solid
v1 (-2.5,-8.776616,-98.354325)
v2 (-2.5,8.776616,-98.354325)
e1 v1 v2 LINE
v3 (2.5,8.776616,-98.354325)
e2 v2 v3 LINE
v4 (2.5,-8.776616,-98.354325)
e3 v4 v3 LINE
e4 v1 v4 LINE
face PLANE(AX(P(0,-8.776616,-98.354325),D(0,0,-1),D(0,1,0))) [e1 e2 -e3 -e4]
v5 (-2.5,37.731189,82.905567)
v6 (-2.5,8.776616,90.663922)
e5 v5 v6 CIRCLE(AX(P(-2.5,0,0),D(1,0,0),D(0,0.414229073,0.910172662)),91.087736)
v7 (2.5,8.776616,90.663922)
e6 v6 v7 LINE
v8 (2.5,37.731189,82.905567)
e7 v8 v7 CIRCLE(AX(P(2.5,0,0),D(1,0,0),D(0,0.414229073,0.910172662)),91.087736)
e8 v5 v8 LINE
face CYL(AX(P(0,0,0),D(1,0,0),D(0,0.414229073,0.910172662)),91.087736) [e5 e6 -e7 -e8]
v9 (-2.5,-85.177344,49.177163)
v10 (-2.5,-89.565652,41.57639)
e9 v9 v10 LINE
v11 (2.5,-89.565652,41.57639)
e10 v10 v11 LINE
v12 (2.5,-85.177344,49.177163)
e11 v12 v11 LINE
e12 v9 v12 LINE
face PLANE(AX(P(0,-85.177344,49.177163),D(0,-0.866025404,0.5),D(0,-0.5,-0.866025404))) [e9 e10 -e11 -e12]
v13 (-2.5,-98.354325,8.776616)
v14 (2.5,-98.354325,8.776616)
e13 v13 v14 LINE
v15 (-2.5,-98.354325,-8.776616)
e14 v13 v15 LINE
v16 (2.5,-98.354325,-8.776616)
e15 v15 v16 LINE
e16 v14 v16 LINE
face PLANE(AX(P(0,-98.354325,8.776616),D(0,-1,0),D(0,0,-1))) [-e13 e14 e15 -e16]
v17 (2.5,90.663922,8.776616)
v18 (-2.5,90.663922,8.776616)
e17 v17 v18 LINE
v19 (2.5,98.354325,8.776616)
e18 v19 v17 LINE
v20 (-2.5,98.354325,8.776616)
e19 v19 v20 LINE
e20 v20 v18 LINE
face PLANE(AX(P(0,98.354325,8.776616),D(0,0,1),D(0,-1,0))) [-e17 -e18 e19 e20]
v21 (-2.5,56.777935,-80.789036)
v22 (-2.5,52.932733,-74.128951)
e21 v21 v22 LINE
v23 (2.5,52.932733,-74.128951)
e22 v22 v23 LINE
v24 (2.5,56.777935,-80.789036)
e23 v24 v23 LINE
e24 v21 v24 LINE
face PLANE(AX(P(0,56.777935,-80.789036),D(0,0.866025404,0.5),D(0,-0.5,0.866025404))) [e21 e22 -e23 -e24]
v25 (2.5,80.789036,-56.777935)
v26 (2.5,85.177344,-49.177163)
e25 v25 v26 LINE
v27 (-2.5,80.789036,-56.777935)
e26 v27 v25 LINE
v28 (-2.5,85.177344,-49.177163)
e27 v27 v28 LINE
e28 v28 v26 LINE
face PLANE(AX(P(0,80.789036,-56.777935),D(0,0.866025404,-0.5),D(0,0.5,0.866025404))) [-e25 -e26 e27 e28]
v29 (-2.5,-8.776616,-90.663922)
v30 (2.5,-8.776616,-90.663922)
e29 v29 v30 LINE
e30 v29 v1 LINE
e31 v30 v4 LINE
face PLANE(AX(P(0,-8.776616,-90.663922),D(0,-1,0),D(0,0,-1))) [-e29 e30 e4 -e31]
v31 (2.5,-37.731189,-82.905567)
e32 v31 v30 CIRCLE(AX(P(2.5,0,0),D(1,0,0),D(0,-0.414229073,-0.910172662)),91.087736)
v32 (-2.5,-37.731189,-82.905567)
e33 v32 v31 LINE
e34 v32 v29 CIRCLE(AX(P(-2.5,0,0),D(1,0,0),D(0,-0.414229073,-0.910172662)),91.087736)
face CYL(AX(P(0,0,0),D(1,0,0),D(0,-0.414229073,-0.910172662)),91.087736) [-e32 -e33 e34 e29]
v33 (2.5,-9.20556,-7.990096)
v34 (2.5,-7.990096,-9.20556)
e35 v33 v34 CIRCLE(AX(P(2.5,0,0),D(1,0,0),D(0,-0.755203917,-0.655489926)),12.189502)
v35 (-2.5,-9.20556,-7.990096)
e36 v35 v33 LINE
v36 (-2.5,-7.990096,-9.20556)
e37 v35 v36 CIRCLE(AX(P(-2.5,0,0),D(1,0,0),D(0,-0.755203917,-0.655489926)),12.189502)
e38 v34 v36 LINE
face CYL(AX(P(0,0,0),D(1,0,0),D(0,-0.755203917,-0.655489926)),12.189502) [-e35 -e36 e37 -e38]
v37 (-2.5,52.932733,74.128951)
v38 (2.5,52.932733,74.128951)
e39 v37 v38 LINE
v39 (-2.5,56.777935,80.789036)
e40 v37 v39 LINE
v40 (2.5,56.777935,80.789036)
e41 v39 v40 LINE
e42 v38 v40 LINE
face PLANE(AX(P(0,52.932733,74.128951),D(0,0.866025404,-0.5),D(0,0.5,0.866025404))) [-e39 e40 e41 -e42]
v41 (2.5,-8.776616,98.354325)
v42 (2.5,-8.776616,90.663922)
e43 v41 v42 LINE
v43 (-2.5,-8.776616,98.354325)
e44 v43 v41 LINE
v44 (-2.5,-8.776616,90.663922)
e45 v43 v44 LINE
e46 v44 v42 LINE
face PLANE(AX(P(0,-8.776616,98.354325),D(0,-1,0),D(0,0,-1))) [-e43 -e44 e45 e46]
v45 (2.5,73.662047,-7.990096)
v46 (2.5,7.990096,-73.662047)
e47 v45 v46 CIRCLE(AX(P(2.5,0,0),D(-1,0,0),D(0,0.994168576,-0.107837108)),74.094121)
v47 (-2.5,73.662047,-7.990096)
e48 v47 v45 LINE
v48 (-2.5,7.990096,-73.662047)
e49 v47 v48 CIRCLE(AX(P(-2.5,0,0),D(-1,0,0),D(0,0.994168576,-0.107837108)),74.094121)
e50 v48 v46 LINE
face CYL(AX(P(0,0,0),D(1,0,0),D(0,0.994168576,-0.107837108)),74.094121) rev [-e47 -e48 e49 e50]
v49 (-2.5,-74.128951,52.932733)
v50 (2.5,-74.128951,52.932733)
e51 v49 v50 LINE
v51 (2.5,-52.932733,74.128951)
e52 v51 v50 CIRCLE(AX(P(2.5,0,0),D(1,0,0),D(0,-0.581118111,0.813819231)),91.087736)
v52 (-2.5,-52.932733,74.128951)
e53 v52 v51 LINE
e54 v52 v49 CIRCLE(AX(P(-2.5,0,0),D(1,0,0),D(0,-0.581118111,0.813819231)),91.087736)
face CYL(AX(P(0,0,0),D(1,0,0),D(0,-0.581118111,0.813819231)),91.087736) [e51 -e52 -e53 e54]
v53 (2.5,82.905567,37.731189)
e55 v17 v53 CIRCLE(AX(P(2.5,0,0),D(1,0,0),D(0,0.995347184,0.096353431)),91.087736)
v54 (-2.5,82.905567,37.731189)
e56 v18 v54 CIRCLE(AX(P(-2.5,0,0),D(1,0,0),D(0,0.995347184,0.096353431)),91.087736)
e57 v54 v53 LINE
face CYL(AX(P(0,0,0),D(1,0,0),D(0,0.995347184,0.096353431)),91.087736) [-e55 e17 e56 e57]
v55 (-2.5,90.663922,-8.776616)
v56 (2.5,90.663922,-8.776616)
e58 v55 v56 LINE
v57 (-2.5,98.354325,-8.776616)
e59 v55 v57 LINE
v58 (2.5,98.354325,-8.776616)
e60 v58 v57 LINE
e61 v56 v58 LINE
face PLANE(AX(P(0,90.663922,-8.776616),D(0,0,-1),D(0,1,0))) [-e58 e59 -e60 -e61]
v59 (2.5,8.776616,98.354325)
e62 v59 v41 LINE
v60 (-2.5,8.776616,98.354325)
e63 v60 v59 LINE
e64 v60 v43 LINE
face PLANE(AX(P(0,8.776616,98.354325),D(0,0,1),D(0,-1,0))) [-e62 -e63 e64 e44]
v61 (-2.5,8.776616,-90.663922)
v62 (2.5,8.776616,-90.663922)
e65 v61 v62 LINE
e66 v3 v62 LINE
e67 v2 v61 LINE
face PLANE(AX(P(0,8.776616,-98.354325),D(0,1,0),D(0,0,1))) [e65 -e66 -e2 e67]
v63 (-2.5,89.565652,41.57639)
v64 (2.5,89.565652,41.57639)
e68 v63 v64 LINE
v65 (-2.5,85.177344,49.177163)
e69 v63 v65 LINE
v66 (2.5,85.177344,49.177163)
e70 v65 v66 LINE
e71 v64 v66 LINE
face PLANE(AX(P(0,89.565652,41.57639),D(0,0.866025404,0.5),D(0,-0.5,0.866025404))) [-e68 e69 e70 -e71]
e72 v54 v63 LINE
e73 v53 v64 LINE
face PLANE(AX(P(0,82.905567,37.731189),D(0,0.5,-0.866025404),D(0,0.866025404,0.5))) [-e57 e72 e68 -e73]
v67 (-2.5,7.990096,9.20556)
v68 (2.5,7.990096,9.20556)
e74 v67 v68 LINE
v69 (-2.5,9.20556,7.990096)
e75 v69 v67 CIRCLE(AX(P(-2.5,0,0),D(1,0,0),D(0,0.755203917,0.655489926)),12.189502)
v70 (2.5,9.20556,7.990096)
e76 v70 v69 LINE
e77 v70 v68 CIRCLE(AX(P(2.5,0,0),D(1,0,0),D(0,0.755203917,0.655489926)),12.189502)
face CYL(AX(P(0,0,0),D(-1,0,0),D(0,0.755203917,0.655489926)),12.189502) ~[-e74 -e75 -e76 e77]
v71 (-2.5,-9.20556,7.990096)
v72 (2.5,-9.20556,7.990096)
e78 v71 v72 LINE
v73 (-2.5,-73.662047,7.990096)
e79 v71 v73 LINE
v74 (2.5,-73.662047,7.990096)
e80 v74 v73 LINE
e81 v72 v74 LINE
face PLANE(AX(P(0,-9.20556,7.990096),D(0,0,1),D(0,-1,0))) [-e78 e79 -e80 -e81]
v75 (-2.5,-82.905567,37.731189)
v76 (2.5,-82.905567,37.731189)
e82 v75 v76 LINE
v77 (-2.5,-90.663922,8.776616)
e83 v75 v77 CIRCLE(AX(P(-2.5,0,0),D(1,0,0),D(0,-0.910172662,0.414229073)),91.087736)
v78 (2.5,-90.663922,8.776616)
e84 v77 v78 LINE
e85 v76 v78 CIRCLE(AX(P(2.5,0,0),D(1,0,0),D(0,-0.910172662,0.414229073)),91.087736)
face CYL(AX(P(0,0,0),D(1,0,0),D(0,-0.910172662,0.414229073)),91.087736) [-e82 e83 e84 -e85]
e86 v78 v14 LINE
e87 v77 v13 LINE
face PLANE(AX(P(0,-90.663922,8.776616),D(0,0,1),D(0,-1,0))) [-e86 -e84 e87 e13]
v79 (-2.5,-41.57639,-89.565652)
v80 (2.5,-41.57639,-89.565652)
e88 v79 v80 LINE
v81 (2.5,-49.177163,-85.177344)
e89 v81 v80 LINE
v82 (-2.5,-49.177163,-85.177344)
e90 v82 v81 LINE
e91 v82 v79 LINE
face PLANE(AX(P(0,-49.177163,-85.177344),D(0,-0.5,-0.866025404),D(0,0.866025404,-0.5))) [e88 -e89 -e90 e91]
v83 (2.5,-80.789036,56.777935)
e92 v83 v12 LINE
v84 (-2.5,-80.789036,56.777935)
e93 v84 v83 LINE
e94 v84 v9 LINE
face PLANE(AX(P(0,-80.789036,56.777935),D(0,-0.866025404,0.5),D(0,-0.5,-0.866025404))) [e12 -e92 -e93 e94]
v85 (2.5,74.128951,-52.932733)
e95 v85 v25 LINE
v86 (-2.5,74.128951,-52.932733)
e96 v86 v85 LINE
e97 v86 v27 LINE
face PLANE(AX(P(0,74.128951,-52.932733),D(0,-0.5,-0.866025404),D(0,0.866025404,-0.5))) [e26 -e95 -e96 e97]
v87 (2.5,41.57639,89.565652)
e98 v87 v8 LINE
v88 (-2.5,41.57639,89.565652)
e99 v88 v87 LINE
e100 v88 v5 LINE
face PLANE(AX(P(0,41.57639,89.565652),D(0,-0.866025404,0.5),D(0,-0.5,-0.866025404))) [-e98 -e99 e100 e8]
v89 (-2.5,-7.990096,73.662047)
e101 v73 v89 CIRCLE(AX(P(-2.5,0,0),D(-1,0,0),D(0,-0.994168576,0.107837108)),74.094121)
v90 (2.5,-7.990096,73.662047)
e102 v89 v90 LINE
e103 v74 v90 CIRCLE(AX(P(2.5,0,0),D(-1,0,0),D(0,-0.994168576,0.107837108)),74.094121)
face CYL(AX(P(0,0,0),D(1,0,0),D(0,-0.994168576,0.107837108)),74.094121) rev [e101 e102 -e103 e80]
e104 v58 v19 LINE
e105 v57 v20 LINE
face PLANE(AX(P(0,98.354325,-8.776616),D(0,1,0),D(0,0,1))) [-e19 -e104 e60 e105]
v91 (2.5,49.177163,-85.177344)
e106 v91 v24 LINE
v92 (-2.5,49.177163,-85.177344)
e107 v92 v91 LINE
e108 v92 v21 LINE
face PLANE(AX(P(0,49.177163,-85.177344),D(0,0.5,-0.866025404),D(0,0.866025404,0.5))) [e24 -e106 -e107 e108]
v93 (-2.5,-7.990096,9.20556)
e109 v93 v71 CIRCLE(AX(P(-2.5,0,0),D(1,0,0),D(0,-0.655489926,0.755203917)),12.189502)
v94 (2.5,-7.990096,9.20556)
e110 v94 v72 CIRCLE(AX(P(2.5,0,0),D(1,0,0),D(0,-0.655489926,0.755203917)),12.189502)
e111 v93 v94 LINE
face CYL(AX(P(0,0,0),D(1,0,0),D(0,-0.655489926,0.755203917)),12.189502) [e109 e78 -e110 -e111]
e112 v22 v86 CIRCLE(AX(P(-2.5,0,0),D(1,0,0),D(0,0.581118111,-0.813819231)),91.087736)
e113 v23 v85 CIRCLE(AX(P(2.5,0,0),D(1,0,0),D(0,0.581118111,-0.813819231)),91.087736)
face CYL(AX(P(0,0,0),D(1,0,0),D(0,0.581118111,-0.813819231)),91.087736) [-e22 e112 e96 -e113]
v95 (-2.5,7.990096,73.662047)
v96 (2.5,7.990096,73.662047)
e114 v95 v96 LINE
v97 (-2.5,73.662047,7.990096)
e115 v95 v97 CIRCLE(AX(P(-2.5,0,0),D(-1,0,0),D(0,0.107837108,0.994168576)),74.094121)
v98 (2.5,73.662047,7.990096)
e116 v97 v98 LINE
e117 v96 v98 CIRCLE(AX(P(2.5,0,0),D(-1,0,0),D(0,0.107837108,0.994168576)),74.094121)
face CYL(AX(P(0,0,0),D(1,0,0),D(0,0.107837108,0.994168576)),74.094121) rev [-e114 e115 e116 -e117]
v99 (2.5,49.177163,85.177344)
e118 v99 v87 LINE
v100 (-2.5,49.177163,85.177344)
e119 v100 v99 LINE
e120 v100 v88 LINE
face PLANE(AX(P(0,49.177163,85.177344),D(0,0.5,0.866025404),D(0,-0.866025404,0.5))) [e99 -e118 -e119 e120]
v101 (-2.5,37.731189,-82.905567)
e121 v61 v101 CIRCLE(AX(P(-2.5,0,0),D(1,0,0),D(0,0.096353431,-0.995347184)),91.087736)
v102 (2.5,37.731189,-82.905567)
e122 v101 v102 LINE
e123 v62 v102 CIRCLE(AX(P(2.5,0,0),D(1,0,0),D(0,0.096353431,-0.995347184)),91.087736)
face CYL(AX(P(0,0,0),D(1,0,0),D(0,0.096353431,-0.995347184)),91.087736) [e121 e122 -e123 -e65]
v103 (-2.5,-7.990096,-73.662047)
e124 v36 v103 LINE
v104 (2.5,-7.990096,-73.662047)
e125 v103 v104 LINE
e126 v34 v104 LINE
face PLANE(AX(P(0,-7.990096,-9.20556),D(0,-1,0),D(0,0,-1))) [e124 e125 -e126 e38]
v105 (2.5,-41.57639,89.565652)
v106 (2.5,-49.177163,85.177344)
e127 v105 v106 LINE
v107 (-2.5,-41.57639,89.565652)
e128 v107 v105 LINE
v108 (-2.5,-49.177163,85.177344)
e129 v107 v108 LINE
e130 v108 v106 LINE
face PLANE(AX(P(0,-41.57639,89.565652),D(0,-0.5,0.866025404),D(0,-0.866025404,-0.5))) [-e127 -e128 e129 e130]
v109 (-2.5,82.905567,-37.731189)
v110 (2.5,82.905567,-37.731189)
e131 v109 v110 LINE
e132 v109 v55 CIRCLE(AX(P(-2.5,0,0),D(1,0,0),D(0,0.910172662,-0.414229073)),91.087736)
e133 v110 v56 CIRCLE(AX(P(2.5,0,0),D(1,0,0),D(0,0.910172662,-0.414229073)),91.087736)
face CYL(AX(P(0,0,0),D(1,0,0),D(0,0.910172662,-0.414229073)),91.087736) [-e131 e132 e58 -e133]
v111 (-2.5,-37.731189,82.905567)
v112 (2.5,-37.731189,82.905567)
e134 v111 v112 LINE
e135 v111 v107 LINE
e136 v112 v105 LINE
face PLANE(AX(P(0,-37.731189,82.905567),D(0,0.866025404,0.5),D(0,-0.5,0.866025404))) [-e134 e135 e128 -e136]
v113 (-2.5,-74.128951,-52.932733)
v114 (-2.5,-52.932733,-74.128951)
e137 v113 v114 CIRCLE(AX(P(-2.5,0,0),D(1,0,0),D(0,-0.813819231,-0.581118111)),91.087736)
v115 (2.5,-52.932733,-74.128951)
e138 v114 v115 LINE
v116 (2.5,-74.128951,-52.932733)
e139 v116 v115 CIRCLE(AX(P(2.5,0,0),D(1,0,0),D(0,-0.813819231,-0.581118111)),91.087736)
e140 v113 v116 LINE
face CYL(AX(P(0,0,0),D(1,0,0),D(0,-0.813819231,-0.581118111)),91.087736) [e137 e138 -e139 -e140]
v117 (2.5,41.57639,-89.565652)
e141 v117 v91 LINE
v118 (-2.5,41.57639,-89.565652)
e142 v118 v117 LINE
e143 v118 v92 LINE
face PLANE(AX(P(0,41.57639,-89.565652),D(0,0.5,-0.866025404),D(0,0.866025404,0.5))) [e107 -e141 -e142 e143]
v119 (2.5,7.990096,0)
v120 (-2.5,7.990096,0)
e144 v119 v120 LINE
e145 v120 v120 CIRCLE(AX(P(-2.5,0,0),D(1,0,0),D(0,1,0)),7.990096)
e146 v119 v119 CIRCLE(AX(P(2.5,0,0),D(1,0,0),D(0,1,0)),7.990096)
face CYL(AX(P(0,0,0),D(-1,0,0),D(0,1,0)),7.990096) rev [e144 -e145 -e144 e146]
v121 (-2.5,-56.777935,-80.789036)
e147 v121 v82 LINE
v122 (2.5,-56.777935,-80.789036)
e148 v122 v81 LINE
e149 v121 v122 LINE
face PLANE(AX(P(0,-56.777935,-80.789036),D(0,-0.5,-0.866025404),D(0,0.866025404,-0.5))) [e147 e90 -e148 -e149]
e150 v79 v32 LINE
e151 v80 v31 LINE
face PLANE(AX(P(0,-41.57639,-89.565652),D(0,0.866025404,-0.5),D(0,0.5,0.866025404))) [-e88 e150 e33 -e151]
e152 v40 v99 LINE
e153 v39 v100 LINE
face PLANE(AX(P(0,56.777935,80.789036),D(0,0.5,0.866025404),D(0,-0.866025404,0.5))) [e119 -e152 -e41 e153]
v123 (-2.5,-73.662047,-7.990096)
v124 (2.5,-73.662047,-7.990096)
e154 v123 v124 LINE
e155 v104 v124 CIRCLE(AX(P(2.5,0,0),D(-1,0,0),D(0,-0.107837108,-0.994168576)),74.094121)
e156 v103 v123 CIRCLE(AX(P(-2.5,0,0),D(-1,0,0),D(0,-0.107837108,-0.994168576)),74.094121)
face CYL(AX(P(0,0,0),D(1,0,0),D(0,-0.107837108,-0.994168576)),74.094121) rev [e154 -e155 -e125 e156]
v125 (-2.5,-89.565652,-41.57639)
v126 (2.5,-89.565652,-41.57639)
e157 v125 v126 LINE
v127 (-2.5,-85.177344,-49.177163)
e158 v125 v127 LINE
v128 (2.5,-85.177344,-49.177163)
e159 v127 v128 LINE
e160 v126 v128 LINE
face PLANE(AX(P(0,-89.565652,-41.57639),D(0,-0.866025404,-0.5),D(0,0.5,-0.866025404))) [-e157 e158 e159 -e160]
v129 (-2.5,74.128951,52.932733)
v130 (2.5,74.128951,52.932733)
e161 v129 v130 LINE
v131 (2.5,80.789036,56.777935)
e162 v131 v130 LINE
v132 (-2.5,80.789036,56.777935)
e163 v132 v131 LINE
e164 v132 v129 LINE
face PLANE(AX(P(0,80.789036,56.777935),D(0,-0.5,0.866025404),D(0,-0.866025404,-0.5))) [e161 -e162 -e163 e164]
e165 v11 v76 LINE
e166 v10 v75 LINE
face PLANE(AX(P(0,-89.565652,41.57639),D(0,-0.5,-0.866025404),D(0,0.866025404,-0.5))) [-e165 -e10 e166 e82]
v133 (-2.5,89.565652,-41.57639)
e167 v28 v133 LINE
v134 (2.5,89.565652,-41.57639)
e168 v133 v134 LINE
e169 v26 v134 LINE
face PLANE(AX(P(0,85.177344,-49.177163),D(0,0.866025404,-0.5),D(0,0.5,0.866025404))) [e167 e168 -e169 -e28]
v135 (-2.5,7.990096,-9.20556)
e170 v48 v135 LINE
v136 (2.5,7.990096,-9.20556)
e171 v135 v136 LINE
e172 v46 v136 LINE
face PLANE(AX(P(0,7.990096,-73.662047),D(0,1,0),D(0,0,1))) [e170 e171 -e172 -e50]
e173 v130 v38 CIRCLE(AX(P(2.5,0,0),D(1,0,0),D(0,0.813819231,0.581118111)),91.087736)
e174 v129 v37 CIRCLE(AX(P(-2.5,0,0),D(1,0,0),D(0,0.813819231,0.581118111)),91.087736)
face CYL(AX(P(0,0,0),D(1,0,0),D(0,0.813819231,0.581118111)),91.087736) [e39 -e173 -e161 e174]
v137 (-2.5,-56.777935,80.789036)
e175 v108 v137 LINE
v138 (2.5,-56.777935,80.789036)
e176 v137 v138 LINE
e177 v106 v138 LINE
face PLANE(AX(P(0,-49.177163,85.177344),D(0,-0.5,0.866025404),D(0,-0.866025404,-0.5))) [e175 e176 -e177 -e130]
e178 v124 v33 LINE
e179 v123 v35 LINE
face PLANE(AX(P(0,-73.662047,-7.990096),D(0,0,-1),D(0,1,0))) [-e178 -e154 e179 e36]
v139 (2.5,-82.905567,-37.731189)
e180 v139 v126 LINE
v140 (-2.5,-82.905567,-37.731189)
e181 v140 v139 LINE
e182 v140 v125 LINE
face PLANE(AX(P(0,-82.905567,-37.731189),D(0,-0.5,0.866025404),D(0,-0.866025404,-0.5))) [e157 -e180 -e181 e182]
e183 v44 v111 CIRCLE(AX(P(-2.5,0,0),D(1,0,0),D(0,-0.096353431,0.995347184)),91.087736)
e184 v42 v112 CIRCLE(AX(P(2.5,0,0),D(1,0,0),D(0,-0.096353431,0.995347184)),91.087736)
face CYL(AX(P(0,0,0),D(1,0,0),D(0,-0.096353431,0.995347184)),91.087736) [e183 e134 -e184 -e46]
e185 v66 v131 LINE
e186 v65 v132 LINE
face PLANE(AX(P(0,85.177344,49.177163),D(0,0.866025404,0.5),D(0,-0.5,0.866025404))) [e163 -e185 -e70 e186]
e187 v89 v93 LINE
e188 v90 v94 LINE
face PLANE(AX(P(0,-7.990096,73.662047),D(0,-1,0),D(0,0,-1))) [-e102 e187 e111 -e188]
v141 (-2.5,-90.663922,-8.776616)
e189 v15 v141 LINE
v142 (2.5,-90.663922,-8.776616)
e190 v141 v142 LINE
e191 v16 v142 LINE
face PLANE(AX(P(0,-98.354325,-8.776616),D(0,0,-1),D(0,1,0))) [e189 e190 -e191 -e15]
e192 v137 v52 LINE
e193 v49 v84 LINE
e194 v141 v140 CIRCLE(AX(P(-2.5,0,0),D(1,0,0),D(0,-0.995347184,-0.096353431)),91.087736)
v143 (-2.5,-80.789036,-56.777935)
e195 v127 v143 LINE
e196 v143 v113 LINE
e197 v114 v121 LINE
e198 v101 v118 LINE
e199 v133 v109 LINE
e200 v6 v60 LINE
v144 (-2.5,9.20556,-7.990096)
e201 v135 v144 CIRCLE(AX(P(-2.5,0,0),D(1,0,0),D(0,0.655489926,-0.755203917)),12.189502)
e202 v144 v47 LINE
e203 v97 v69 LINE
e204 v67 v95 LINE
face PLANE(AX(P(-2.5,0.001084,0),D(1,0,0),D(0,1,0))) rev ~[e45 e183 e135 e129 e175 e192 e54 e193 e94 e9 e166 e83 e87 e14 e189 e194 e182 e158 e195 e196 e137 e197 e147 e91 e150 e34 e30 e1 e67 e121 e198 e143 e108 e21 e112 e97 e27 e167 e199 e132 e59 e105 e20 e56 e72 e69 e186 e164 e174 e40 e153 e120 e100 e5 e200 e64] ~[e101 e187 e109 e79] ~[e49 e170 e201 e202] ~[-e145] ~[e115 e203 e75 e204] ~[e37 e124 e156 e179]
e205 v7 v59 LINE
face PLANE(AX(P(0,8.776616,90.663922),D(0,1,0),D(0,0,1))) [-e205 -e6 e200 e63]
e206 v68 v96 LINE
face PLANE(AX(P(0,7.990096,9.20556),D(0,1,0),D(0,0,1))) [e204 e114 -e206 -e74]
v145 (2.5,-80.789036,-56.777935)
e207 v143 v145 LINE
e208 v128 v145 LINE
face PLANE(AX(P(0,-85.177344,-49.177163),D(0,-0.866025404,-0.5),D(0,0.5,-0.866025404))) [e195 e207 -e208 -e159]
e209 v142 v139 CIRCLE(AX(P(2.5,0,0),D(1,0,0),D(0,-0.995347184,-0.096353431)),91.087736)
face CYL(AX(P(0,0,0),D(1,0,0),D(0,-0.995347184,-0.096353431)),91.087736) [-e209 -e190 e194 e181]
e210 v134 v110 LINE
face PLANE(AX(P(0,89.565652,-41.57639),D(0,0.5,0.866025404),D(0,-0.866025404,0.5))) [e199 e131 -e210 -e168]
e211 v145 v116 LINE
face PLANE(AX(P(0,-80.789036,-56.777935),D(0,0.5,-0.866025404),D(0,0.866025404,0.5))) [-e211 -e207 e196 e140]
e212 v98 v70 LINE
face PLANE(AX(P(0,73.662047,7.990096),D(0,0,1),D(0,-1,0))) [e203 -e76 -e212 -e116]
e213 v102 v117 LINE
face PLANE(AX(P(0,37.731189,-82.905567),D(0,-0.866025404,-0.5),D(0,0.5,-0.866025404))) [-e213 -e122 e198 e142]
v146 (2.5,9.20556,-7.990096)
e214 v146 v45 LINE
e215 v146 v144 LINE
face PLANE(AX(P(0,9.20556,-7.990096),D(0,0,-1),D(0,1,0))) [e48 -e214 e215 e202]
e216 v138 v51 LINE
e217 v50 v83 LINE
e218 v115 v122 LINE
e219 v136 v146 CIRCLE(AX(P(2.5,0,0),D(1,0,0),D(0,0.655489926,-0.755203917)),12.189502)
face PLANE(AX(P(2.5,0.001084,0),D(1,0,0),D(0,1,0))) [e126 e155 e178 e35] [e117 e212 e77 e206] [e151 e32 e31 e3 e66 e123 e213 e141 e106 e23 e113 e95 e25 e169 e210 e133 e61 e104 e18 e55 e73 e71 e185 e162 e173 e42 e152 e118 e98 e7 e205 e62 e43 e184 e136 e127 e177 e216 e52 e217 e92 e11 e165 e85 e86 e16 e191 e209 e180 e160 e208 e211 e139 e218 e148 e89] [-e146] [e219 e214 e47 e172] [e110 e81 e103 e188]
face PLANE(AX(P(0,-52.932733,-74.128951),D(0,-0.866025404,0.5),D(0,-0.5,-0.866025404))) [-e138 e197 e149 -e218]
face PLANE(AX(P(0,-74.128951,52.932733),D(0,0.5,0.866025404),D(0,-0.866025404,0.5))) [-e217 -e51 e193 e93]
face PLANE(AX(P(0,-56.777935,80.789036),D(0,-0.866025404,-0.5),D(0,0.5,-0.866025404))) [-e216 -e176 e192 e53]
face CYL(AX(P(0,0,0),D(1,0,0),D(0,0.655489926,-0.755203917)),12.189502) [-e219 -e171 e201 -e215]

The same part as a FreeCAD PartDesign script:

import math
import FreeCAD as App
import Part
import Sketcher
from FreeCAD import Vector
Q = App.Units.Quantity

doc = App.newDocument("Part")
body = doc.addObject("PartDesign::Body", "Body")

sketch1 = doc.addObject("Sketcher::SketchObject", "Sketch")
body.addObject(sketch1)
sketch1.AttachmentSupport = (doc.YZ_Plane, [""])
sketch1.MapMode = "FlatFace"
sketch1.addGeometry([
    Part.ArcOfCircle(Part.Circle(Vector(0, 0, 0), Vector(0, 0, 1), 91.1), math.radians(5.53), math.radians(24.47)),
    Part.LineSegment(Vector(82.9, 37.7, 0), Vector(89.6, 41.6, 0)),
    Part.LineSegment(Vector(89.6, 41.6, 0), Vector(85.2, 49.2, 0)),
    Part.LineSegment(Vector(85.2, 49.2, 0), Vector(80.8, 56.8, 0)),
    Part.LineSegment(Vector(80.8, 56.8, 0), Vector(74.1, 52.9, 0)),
    Part.ArcOfCircle(Part.Circle(Vector(0, 0, 0), Vector(0, 0, 1), 91.1), math.radians(35.53), math.radians(54.47)),
    Part.LineSegment(Vector(52.9, 74.1, 0), Vector(56.8, 80.8, 0)),
    Part.LineSegment(Vector(56.8, 80.8, 0), Vector(49.2, 85.2, 0)),
    Part.LineSegment(Vector(49.2, 85.2, 0), Vector(41.6, 89.6, 0)),
    Part.LineSegment(Vector(41.6, 89.6, 0), Vector(37.7, 82.9, 0)),
    Part.ArcOfCircle(Part.Circle(Vector(0, 0, 0), Vector(0, 0, 1), 91.1), math.radians(65.53), math.radians(84.47)),
    Part.LineSegment(Vector(8.8, 90.7, 0), Vector(8.8, 98.4, 0)),
    Part.LineSegment(Vector(8.8, 98.4, 0), Vector(-8.8, 98.4, 0)),
    Part.LineSegment(Vector(-8.8, 98.4, 0), Vector(-8.8, 90.7, 0)),
    Part.ArcOfCircle(Part.Circle(Vector(0, 0, 0), Vector(0, 0, 1), 91.1), math.radians(95.53), math.radians(114.47)),
    Part.LineSegment(Vector(-37.7, 82.9, 0), Vector(-41.6, 89.6, 0)),
    Part.LineSegment(Vector(-41.6, 89.6, 0), Vector(-49.2, 85.2, 0)),
    Part.LineSegment(Vector(-49.2, 85.2, 0), Vector(-56.8, 80.8, 0)),
    Part.LineSegment(Vector(-56.8, 80.8, 0), Vector(-52.9, 74.1, 0)),
    Part.ArcOfCircle(Part.Circle(Vector(0, 0, 0), Vector(0, 0, 1), 91.1), math.radians(125.53), math.radians(144.47)),
    Part.LineSegment(Vector(-74.1, 52.9, 0), Vector(-80.8, 56.8, 0)),
    Part.LineSegment(Vector(-80.8, 56.8, 0), Vector(-85.2, 49.2, 0)),
    Part.LineSegment(Vector(-85.2, 49.2, 0), Vector(-89.6, 41.6, 0)),
    Part.LineSegment(Vector(-89.6, 41.6, 0), Vector(-82.9, 37.7, 0)),
    Part.ArcOfCircle(Part.Circle(Vector(0, 0, 0), Vector(0, 0, 1), 91.1), math.radians(155.53), math.radians(174.47)),
    Part.LineSegment(Vector(-90.7, 8.8, 0), Vector(-98.4, 8.8, 0)),
    Part.LineSegment(Vector(-98.4, 8.8, 0), Vector(-98.4, -8.8, 0)),
    Part.LineSegment(Vector(-98.4, -8.8, 0), Vector(-90.7, -8.8, 0)),
    Part.ArcOfCircle(Part.Circle(Vector(0, 0, 0), Vector(0, 0, 1), 91.1), math.radians(-174.47), math.radians(-155.53)),
    Part.LineSegment(Vector(-82.9, -37.7, 0), Vector(-89.6, -41.6, 0)),
    Part.LineSegment(Vector(-89.6, -41.6, 0), Vector(-85.2, -49.2, 0)),
    Part.LineSegment(Vector(-85.2, -49.2, 0), Vector(-80.8, -56.8, 0)),
    Part.LineSegment(Vector(-80.8, -56.8, 0), Vector(-74.1, -52.9, 0)),
    Part.ArcOfCircle(Part.Circle(Vector(0, 0, 0), Vector(0, 0, 1), 91.1), math.radians(-144.47), math.radians(-125.53)),
    Part.LineSegment(Vector(-52.9, -74.1, 0), Vector(-56.8, -80.8, 0)),
    Part.LineSegment(Vector(-56.8, -80.8, 0), Vector(-49.2, -85.2, 0)),
    Part.LineSegment(Vector(-49.2, -85.2, 0), Vector(-41.6, -89.6, 0)),
    Part.LineSegment(Vector(-41.6, -89.6, 0), Vector(-37.7, -82.9, 0)),
    Part.ArcOfCircle(Part.Circle(Vector(0, 0, 0), Vector(0, 0, 1), 91.1), math.radians(-114.47), math.radians(-95.53)),
    Part.LineSegment(Vector(-8.8, -90.7, 0), Vector(-8.8, -98.4, 0)),
    Part.LineSegment(Vector(-8.8, -98.4, 0), Vector(8.8, -98.4, 0)),
    Part.LineSegment(Vector(8.8, -98.4, 0), Vector(8.8, -90.7, 0)),
    Part.ArcOfCircle(Part.Circle(Vector(0, 0, 0), Vector(0, 0, 1), 91.1), math.radians(-84.47), math.radians(-65.53)),
    Part.LineSegment(Vector(37.7, -82.9, 0), Vector(41.6, -89.6, 0)),
    Part.LineSegment(Vector(41.6, -89.6, 0), Vector(49.2, -85.2, 0)),
    Part.LineSegment(Vector(49.2, -85.2, 0), Vector(56.8, -80.8, 0)),
    Part.LineSegment(Vector(56.8, -80.8, 0), Vector(52.9, -74.1, 0)),
    Part.ArcOfCircle(Part.Circle(Vector(0, 0, 0), Vector(0, 0, 1), 91.1), math.radians(-54.47), math.radians(-35.53)),
    Part.LineSegment(Vector(74.1, -52.9, 0), Vector(80.8, -56.8, 0)),
    Part.LineSegment(Vector(80.8, -56.8, 0), Vector(85.2, -49.2, 0)),
    Part.LineSegment(Vector(85.2, -49.2, 0), Vector(89.6, -41.6, 0)),
    Part.LineSegment(Vector(89.6, -41.6, 0), Vector(82.9, -37.7, 0)),
    Part.ArcOfCircle(Part.Circle(Vector(0, 0, 0), Vector(0, 0, 1), 91.1), math.radians(-24.47), math.radians(-5.53)),
    Part.LineSegment(Vector(90.7, -8.8, 0), Vector(98.4, -8.8, 0)),
    Part.LineSegment(Vector(98.4, -8.8, 0), Vector(98.4, 8.8, 0)),
    Part.LineSegment(Vector(98.4, 8.8, 0), Vector(90.7, 8.8, 0)),
    Part.LineSegment(Vector(-8, -9.2, 0), Vector(-8, -73.7, 0)),
    Part.ArcOfCircle(Part.Circle(Vector(0, 0, 0), Vector(0, 0, 1), 74.1), math.radians(-174), math.radians(-96)),
    Part.LineSegment(Vector(-73.7, -8, 0), Vector(-9.2, -8, 0)),
    Part.ArcOfCircle(Part.Circle(Vector(0, 0, 0), Vector(0, 0, 1), 12.2), math.radians(-139.04), math.radians(-130.96)),
    Part.LineSegment(Vector(9.2, -8, 0), Vector(73.7, -8, 0)),
    Part.ArcOfCircle(Part.Circle(Vector(0, 0, 0), Vector(0, 0, 1), 74.1), math.radians(-84), math.radians(-6)),
    Part.LineSegment(Vector(8, -73.7, 0), Vector(8, -9.2, 0)),
    Part.ArcOfCircle(Part.Circle(Vector(0, 0, 0), Vector(0, 0, 1), 12.2), math.radians(-49.04), math.radians(-40.96)),
    Part.ArcOfCircle(Part.Circle(Vector(0, 0, 0), Vector(0, 0, 1), 74.1), math.radians(96), math.radians(174)),
    Part.LineSegment(Vector(-8, 73.7, 0), Vector(-8, 9.2, 0)),
    Part.ArcOfCircle(Part.Circle(Vector(0, 0, 0), Vector(0, 0, 1), 12.2), math.radians(130.96), math.radians(139.04)),
    Part.LineSegment(Vector(-9.2, 8, 0), Vector(-73.7, 8, 0)),
    Part.Circle(Vector(0, 0, 0), Vector(0, 0, 1), 8),
    Part.LineSegment(Vector(8, 9.2, 0), Vector(8, 73.7, 0)),
    Part.ArcOfCircle(Part.Circle(Vector(0, 0, 0), Vector(0, 0, 1), 74.1), math.radians(6), math.radians(84)),
    Part.LineSegment(Vector(73.7, 8, 0), Vector(9.2, 8, 0)),
    Part.ArcOfCircle(Part.Circle(Vector(0, 0, 0), Vector(0, 0, 1), 12.2), math.radians(40.96), math.radians(49.04)),
], False)
sketch1.addConstraint([
    Sketcher.Constraint("Coincident", 0, 2, 1, 1),
    Sketcher.Constraint("Coincident", 1, 2, 2, 1),
    Sketcher.Constraint("Coincident", 2, 2, 3, 1),
    Sketcher.Constraint("Coincident", 3, 2, 4, 1),
    Sketcher.Constraint("Coincident", 4, 2, 5, 1),
    Sketcher.Constraint("Coincident", 5, 2, 6, 1),
    Sketcher.Constraint("Coincident", 6, 2, 7, 1),
    Sketcher.Constraint("Coincident", 7, 2, 8, 1),
    Sketcher.Constraint("Coincident", 8, 2, 9, 1),
    Sketcher.Constraint("Coincident", 9, 2, 10, 1),
    Sketcher.Constraint("Coincident", 10, 2, 11, 1),
    Sketcher.Constraint("Coincident", 11, 2, 12, 1),
    Sketcher.Constraint("Coincident", 12, 2, 13, 1),
    Sketcher.Constraint("Coincident", 13, 2, 14, 1),
    Sketcher.Constraint("Coincident", 14, 2, 15, 1),
    Sketcher.Constraint("Coincident", 15, 2, 16, 1),
    Sketcher.Constraint("Coincident", 16, 2, 17, 1),
    Sketcher.Constraint("Coincident", 17, 2, 18, 1),
    Sketcher.Constraint("Coincident", 18, 2, 19, 1),
    Sketcher.Constraint("Coincident", 19, 2, 20, 1),
    Sketcher.Constraint("Coincident", 20, 2, 21, 1),
    Sketcher.Constraint("Coincident", 21, 2, 22, 1),
    Sketcher.Constraint("Coincident", 22, 2, 23, 1),
    Sketcher.Constraint("Coincident", 23, 2, 24, 1),
    Sketcher.Constraint("Coincident", 24, 2, 25, 1),
    Sketcher.Constraint("Coincident", 25, 2, 26, 1),
    Sketcher.Constraint("Coincident", 26, 2, 27, 1),
    Sketcher.Constraint("Coincident", 27, 2, 28, 1),
    Sketcher.Constraint("Coincident", 28, 2, 29, 1),
    Sketcher.Constraint("Coincident", 29, 2, 30, 1),
    Sketcher.Constraint("Coincident", 30, 2, 31, 1),
    Sketcher.Constraint("Coincident", 31, 2, 32, 1),
    Sketcher.Constraint("Coincident", 32, 2, 33, 1),
    Sketcher.Constraint("Coincident", 33, 2, 34, 1),
    Sketcher.Constraint("Coincident", 34, 2, 35, 1),
    Sketcher.Constraint("Coincident", 35, 2, 36, 1),
    Sketcher.Constraint("Coincident", 36, 2, 37, 1),
    Sketcher.Constraint("Coincident", 37, 2, 38, 1),
    Sketcher.Constraint("Coincident", 38, 2, 39, 1),
    Sketcher.Constraint("Coincident", 39, 2, 40, 1),
    Sketcher.Constraint("Coincident", 40, 2, 41, 1),
    Sketcher.Constraint("Coincident", 41, 2, 42, 1),
    Sketcher.Constraint("Coincident", 42, 2, 43, 1),
    Sketcher.Constraint("Coincident", 43, 2, 44, 1),
    Sketcher.Constraint("Coincident", 44, 2, 45, 1),
    Sketcher.Constraint("Coincident", 45, 2, 46, 1),
    Sketcher.Constraint("Coincident", 46, 2, 47, 1),
    Sketcher.Constraint("Coincident", 47, 2, 48, 1),
    Sketcher.Constraint("Coincident", 48, 2, 49, 1),
    Sketcher.Constraint("Coincident", 49, 2, 50, 1),
    Sketcher.Constraint("Coincident", 50, 2, 51, 1),
    Sketcher.Constraint("Coincident", 51, 2, 52, 1),
    Sketcher.Constraint("Coincident", 52, 2, 53, 1),
    Sketcher.Constraint("Coincident", 53, 2, 54, 1),
    Sketcher.Constraint("Coincident", 54, 2, 55, 1),
    Sketcher.Constraint("Coincident", 55, 2, 0, 1),
    Sketcher.Constraint("Coincident", 56, 2, 57, 2),
    Sketcher.Constraint("Coincident", 57, 1, 58, 1),
    Sketcher.Constraint("Coincident", 58, 2, 59, 1),
    Sketcher.Constraint("Coincident", 59, 2, 56, 1),
    Sketcher.Constraint("Coincident", 60, 2, 61, 2),
    Sketcher.Constraint("Coincident", 61, 1, 62, 1),
    Sketcher.Constraint("Coincident", 62, 2, 63, 1),
    Sketcher.Constraint("Coincident", 63, 2, 60, 1),
    Sketcher.Constraint("Coincident", 64, 1, 65, 1),
    Sketcher.Constraint("Coincident", 65, 2, 66, 1),
    Sketcher.Constraint("Coincident", 66, 2, 67, 1),
    Sketcher.Constraint("Coincident", 67, 2, 64, 2),
    Sketcher.Constraint("Coincident", 69, 2, 70, 2),
    Sketcher.Constraint("Coincident", 70, 1, 71, 1),
    Sketcher.Constraint("Coincident", 71, 2, 72, 1),
    Sketcher.Constraint("Coincident", 72, 2, 69, 1),
    Sketcher.Constraint("Vertical", 11),
    Sketcher.Constraint("Horizontal", 12),
    Sketcher.Constraint("Vertical", 13),
    Sketcher.Constraint("Horizontal", 25),
    Sketcher.Constraint("Vertical", 26),
    Sketcher.Constraint("Horizontal", 27),
    Sketcher.Constraint("Vertical", 39),
    Sketcher.Constraint("Horizontal", 40),
    Sketcher.Constraint("Vertical", 41),
    Sketcher.Constraint("Horizontal", 53),
    Sketcher.Constraint("Vertical", 54),
    Sketcher.Constraint("Horizontal", 55),
    Sketcher.Constraint("Vertical", 56),
    Sketcher.Constraint("Horizontal", 58),
    Sketcher.Constraint("Horizontal", 60),
    Sketcher.Constraint("Vertical", 62),
    Sketcher.Constraint("Vertical", 65),
    Sketcher.Constraint("Horizontal", 67),
    Sketcher.Constraint("Vertical", 69),
    Sketcher.Constraint("Horizontal", 71),
    Sketcher.Constraint("Coincident", 0, 3, -1, 1),
    Sketcher.Constraint("Coincident", 5, 3, -1, 1),
    Sketcher.Constraint("Coincident", 10, 3, -1, 1),
    Sketcher.Constraint("Coincident", 14, 3, -1, 1),
    Sketcher.Constraint("Coincident", 19, 3, -1, 1),
    Sketcher.Constraint("Coincident", 24, 3, -1, 1),
    Sketcher.Constraint("Coincident", 28, 3, -1, 1),
    Sketcher.Constraint("Coincident", 33, 3, -1, 1),
    Sketcher.Constraint("Coincident", 38, 3, -1, 1),
    Sketcher.Constraint("Coincident", 42, 3, -1, 1),
    Sketcher.Constraint("Coincident", 47, 3, -1, 1),
    Sketcher.Constraint("Coincident", 52, 3, -1, 1),
    Sketcher.Constraint("Coincident", 57, 3, -1, 1),
    Sketcher.Constraint("Coincident", 59, 3, -1, 1),
    Sketcher.Constraint("Coincident", 61, 3, -1, 1),
    Sketcher.Constraint("Coincident", 63, 3, -1, 1),
    Sketcher.Constraint("Coincident", 64, 3, -1, 1),
    Sketcher.Constraint("Coincident", 66, 3, -1, 1),
    Sketcher.Constraint("Coincident", 68, 3, -1, 1),
    Sketcher.Constraint("Coincident", 70, 3, -1, 1),
    Sketcher.Constraint("Coincident", 72, 3, -1, 1),
    Sketcher.Constraint("Equal", 0, 5),
    Sketcher.Constraint("Equal", 5, 10),
    Sketcher.Constraint("Equal", 10, 14),
    Sketcher.Constraint("Equal", 14, 19),
    Sketcher.Constraint("Equal", 19, 24),
    Sketcher.Constraint("Equal", 24, 28),
    Sketcher.Constraint("Equal", 28, 33),
    Sketcher.Constraint("Equal", 33, 38),
    Sketcher.Constraint("Equal", 38, 42),
    Sketcher.Constraint("Equal", 42, 47),
    Sketcher.Constraint("Equal", 47, 52),
    Sketcher.Constraint("Equal", 57, 61),
    Sketcher.Constraint("Equal", 59, 63),
    Sketcher.Constraint("Equal", 61, 64),
    Sketcher.Constraint("Equal", 63, 66),
    Sketcher.Constraint("Equal", 64, 70),
    Sketcher.Constraint("Equal", 66, 72),
    Sketcher.Constraint("Symmetric", 1, 2, 29, 2, -1, 1),
    Sketcher.Constraint("Symmetric", 2, 2, 30, 2, -1, 1),
    Sketcher.Constraint("Symmetric", 3, 2, 31, 2, -1, 1),
    Sketcher.Constraint("Symmetric", 6, 2, 34, 2, -1, 1),
    Sketcher.Constraint("Symmetric", 7, 2, 35, 2, -1, 1),
    Sketcher.Constraint("Symmetric", 8, 2, 36, 2, -1, 1),
    Sketcher.Constraint("Symmetric", 11, 2, 39, 2, -1, 1),
    Sketcher.Constraint("Symmetric", 15, 2, 43, 2, -1, 1),
    Sketcher.Constraint("Symmetric", 16, 2, 44, 2, -1, 1),
    Sketcher.Constraint("Symmetric", 17, 2, 45, 2, -1, 1),
    Sketcher.Constraint("Symmetric", 20, 2, 48, 2, -1, 1),
    Sketcher.Constraint("Symmetric", 21, 2, 49, 2, -1, 1),
    Sketcher.Constraint("Symmetric", 22, 2, 50, 2, -1, 1),
    Sketcher.Constraint("Symmetric", 25, 2, 53, 2, -1, 1),
    Sketcher.Constraint("Symmetric", 8, 2, 15, 2, -2),
    Sketcher.Constraint("Symmetric", 7, 2, 16, 2, -2),
    Sketcher.Constraint("Symmetric", 6, 2, 17, 2, -2),
    Sketcher.Constraint("Symmetric", 3, 2, 20, 2, -2),
    Sketcher.Constraint("Symmetric", 2, 2, 21, 2, -2),
    Sketcher.Constraint("Symmetric", 1, 2, 22, 2, -2),
    Sketcher.Constraint("Perpendicular", 1, 2),
    Sketcher.Constraint("Parallel", 2, 3),
    Sketcher.Constraint("Perpendicular", 3, 4),
    Sketcher.Constraint("Perpendicular", 6, 7),
    Sketcher.Constraint("Parallel", 7, 8),
    Sketcher.Constraint("Perpendicular", 8, 9),
    Sketcher.Constraint("Perpendicular", 4, 15),
    Sketcher.Constraint("Perpendicular", 15, 16),
    Sketcher.Constraint("Perpendicular", 17, 18),
    Sketcher.Constraint("Perpendicular", 9, 20),
    Sketcher.Constraint("Perpendicular", 22, 23),
    Sketcher.Constraint("Perpendicular", 18, 29),
    Sketcher.Constraint("Perpendicular", 31, 32),
    Sketcher.Constraint("Perpendicular", 23, 34),
    Sketcher.Constraint("Perpendicular", 36, 37),
    Sketcher.Constraint("Perpendicular", 32, 43),
    Sketcher.Constraint("Perpendicular", 45, 46),
    Sketcher.Constraint("Perpendicular", 37, 48),
    Sketcher.Constraint("Perpendicular", 50, 51),
    Sketcher.Constraint("Horizontal", 10, 2, 13, 2),
    Sketcher.Constraint("Horizontal", 38, 2, 41, 2),
    Sketcher.Constraint("Horizontal", 27, 2, 52, 2),
    Sketcher.Constraint("Horizontal", 25, 2, 54, 2),
    Sketcher.Constraint("Horizontal", 58, 2, 60, 2),
    Sketcher.Constraint("Horizontal", 56, 2, 61, 1),
    Sketcher.Constraint("Horizontal", 64, 1, 69, 2),
    Sketcher.Constraint("Horizontal", 67, 2, 70, 1),
    Sketcher.Constraint("Vertical", 59, 2, 64, 1),
    Sketcher.Constraint("Vertical", 58, 2, 66, 2),
    Sketcher.Constraint("Equal", 55, 11),
    Sketcher.Constraint("Equal", 40, 26),
    Sketcher.Constraint("Equal", 71, 56),
    Sketcher.Constraint("Equal", 2, 3),
    Sketcher.Constraint("Equal", 1, 4),
    Sketcher.Constraint("Equal", 4, 6),
    Sketcher.Constraint("Equal", 3, 7),
    Sketcher.Constraint("Equal", 7, 8),
    Sketcher.Constraint("Equal", 6, 9),
    Sketcher.Constraint("Angle", 1, Q("30 deg")),
    Sketcher.Constraint("Diameter", 68, 15.980192),
    Sketcher.Constraint("Radius", 57, 74.094121),
    Sketcher.Constraint("Radius", 0, 91.087736),
    Sketcher.Constraint("Radius", 59, 12.189502),
    Sketcher.Constraint("DistanceX", 12, 2, 12, 1, 17.553232),
    Sketcher.Constraint("DistanceX", 25, 2, 25, 1, 7.690404),
    Sketcher.Constraint("DistanceX", 58, 1, 58, 2, 64.456487),
    Sketcher.Constraint("DistanceY", -1, 1, 1, 2, 41.57639),
    Sketcher.Constraint("DistanceX", -1, 1, 4, 2, 74.128951),
])
pad1 = doc.addObject("PartDesign::Pad", "Pad")
body.addObject(pad1)
pad1.Profile = sketch1
pad1.Length = 5
pad1.Midplane = True

doc.recompute()
